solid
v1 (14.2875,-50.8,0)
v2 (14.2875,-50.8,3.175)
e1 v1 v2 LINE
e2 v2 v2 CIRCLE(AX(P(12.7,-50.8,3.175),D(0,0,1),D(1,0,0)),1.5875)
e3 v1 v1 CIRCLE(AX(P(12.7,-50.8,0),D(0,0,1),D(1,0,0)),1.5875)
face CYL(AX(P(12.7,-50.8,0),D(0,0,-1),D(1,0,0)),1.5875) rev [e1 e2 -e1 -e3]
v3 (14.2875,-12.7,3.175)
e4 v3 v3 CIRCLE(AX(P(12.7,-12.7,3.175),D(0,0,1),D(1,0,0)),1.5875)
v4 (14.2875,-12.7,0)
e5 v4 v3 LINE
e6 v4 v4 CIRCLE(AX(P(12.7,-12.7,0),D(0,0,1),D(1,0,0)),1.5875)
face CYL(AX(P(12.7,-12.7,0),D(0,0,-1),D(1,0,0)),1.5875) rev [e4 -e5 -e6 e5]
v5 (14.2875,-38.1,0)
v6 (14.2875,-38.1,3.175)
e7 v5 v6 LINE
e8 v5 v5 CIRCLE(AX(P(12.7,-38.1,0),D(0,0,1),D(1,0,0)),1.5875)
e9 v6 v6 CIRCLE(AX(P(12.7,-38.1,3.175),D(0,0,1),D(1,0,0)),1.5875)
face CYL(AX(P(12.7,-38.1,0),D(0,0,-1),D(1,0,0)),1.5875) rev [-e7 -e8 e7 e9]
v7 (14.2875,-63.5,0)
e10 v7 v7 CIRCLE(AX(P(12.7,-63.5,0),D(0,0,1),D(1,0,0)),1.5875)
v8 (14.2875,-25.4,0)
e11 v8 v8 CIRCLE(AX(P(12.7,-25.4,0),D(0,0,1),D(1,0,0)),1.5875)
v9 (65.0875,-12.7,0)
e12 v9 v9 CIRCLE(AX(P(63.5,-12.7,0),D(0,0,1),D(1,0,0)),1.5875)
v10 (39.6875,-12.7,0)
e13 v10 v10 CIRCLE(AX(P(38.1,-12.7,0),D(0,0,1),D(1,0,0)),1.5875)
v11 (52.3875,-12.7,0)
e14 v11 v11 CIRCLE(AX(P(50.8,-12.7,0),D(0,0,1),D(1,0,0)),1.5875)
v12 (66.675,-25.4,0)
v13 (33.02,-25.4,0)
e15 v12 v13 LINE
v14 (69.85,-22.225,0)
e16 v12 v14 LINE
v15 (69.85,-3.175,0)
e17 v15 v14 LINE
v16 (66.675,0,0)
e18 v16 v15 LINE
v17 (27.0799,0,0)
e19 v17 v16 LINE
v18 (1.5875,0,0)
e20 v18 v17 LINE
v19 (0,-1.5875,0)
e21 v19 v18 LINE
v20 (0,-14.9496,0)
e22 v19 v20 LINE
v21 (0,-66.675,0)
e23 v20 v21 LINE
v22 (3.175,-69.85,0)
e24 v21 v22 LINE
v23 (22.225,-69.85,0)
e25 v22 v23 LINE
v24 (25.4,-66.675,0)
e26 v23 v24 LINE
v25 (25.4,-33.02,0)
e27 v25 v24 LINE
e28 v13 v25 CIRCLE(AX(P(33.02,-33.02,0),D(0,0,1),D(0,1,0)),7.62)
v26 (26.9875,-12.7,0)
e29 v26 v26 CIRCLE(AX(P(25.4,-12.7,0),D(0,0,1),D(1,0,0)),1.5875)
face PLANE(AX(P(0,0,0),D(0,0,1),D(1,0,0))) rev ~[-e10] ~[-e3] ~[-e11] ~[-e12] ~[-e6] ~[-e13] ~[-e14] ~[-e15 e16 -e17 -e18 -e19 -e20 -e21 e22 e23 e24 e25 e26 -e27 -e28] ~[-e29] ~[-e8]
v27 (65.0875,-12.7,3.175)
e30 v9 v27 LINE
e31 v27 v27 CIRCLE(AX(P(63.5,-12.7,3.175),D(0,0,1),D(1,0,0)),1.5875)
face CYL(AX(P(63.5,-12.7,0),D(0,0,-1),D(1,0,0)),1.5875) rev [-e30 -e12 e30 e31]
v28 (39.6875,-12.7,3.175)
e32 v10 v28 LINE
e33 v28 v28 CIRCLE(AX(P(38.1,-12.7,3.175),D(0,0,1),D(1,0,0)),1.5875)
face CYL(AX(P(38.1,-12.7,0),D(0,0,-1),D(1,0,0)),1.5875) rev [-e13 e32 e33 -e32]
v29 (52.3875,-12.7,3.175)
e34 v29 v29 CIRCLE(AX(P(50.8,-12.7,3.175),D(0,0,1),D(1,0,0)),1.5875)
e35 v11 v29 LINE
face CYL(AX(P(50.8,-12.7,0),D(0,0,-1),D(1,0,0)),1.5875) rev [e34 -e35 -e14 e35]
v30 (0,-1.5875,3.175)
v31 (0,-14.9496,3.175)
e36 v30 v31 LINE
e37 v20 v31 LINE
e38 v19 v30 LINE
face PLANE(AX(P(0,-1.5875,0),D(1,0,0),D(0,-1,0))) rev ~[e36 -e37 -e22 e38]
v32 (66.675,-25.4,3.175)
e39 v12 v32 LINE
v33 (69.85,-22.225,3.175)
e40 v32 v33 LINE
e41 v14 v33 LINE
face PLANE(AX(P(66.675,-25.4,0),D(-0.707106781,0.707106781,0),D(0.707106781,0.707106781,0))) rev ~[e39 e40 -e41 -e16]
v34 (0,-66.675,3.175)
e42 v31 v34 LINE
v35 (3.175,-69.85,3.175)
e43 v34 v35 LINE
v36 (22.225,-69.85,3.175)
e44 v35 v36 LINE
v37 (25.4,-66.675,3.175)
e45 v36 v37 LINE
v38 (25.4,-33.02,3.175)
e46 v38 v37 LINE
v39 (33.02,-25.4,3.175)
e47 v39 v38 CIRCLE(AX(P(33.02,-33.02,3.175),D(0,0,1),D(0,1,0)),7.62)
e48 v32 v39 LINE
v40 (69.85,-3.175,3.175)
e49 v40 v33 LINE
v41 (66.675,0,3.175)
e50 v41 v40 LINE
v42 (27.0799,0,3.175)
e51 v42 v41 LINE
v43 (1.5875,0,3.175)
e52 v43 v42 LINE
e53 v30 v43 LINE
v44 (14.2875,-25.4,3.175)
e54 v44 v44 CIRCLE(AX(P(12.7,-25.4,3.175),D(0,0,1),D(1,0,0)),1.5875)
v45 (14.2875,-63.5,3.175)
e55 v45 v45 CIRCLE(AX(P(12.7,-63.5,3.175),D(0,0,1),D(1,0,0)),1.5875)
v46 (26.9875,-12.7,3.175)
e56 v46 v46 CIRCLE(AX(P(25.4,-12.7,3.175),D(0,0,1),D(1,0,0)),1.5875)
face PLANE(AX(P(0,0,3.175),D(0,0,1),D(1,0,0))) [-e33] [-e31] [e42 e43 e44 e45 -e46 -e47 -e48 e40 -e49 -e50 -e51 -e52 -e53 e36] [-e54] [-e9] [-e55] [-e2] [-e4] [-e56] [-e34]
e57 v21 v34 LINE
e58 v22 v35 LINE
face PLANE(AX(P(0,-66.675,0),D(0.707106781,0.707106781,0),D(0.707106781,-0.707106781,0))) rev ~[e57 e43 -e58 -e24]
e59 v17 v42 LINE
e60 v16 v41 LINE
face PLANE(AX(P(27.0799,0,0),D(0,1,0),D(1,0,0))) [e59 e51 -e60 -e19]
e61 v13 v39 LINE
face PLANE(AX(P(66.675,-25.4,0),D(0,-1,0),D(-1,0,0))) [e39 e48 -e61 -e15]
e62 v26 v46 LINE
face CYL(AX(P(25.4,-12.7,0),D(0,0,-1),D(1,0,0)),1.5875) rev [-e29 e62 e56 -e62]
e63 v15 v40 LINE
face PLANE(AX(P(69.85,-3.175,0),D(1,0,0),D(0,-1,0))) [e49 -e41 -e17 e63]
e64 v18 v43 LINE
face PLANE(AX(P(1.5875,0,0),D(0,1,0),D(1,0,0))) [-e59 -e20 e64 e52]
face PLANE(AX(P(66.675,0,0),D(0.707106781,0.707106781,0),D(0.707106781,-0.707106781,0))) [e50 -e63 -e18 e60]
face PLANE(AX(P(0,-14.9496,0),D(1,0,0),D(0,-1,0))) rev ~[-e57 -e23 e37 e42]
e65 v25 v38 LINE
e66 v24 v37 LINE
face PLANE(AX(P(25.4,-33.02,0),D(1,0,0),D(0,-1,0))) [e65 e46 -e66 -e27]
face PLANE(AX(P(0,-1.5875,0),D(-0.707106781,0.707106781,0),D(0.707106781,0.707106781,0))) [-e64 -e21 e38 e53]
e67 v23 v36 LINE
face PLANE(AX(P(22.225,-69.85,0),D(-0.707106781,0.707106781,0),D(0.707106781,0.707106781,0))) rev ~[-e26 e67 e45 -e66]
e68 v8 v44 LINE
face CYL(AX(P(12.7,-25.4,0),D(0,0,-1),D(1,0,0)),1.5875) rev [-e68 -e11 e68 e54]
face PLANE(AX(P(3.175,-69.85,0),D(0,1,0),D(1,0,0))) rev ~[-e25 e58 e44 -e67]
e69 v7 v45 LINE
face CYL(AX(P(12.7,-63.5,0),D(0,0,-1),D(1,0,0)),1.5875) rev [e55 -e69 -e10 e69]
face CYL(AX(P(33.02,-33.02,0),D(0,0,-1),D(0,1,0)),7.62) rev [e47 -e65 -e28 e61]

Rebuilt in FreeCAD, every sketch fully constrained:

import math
import FreeCAD as App
import Part
import Sketcher
Q = App.Units.Quantity

doc = App.newDocument("Part")
body = doc.addObject("PartDesign::Body", "Body")

# Sketch on XY plane
sketch1 = doc.addObject("Sketcher::SketchObject", "Sketch")
body.addObject(sketch1)
sketch1.AttachmentSupport = (doc.XY_Plane, [""])
sketch1.MapMode = "FlatFace"
sketch1.addGeometry(Part.LineSegment(App.Vector(1.5875, 0, 0), App.Vector(0, -1.5875, 0)), False)
sketch1.addGeometry(Part.LineSegment(App.Vector(0, -1.5875, 0), App.Vector(0, -66.675, 0)), False)
sketch1.addGeometry(Part.LineSegment(App.Vector(0, -66.675, 0), App.Vector(3.175, -69.85, 0)), False)
sketch1.addGeometry(Part.LineSegment(App.Vector(3.175, -69.85, 0), App.Vector(22.225, -69.85, 0)), False)
sketch1.addGeometry(Part.LineSegment(App.Vector(22.225, -69.85, 0), App.Vector(25.4, -66.675, 0)), False)
sketch1.addGeometry(Part.LineSegment(App.Vector(25.4, -66.675, 0), App.Vector(25.4, -33.02, 0)), False)
sketch1.addGeometry(Part.ArcOfCircle(Part.Circle(App.Vector(33.02, -33.02, 0), App.Vector(0, 0, 1), 7.62), math.radians(90), math.radians(180)), False)
sketch1.addGeometry(Part.LineSegment(App.Vector(33.02, -25.4, 0), App.Vector(66.675, -25.4, 0)), False)
sketch1.addGeometry(Part.LineSegment(App.Vector(66.675, -25.4, 0), App.Vector(69.85, -22.225, 0)), False)
sketch1.addGeometry(Part.LineSegment(App.Vector(69.85, -22.225, 0), App.Vector(69.85, -3.175, 0)), False)
sketch1.addGeometry(Part.LineSegment(App.Vector(69.85, -3.175, 0), App.Vector(66.675, 0, 0)), False)
sketch1.addGeometry(Part.LineSegment(App.Vector(66.675, 0, 0), App.Vector(1.5875, 0, 0)), False)
sketch1.addGeometry(Part.Circle(App.Vector(12.7, -63.5, 0), App.Vector(0, 0, 1), 1.5875), False)
sketch1.addGeometry(Part.Circle(App.Vector(12.7, -50.8, 0), App.Vector(0, 0, 1), 1.5875), False)
sketch1.addGeometry(Part.Circle(App.Vector(12.7, -38.1, 0), App.Vector(0, 0, 1), 1.5875), False)
sketch1.addGeometry(Part.Circle(App.Vector(12.7, -25.4, 0), App.Vector(0, 0, 1), 1.5875), False)
sketch1.addGeometry(Part.Circle(App.Vector(12.7, -12.7, 0), App.Vector(0, 0, 1), 1.5875), False)
sketch1.addGeometry(Part.Circle(App.Vector(25.4, -12.7, 0), App.Vector(0, 0, 1), 1.5875), False)
sketch1.addGeometry(Part.Circle(App.Vector(38.1, -12.7, 0), App.Vector(0, 0, 1), 1.5875), False)
sketch1.addGeometry(Part.Circle(App.Vector(50.8, -12.7, 0), App.Vector(0, 0, 1), 1.5875), False)
sketch1.addGeometry(Part.Circle(App.Vector(63.5, -12.7, 0), App.Vector(0, 0, 1), 1.5875), False)
sketch1.addConstraint(Sketcher.Constraint("Coincident", 0, 2, 1, 1))
sketch1.addConstraint(Sketcher.Constraint("Coincident", 1, 2, 2, 1))
sketch1.addConstraint(Sketcher.Constraint("Coincident", 2, 2, 3, 1))
sketch1.addConstraint(Sketcher.Constraint("Coincident", 3, 2, 4, 1))
sketch1.addConstraint(Sketcher.Constraint("Coincident", 4, 2, 5, 1))
sketch1.addConstraint(Sketcher.Constraint("Tangent", 5, 2, 6, 2))
sketch1.addConstraint(Sketcher.Constraint("Tangent", 6, 1, 7, 1))
sketch1.addConstraint(Sketcher.Constraint("Coincident", 7, 2, 8, 1))
sketch1.addConstraint(Sketcher.Constraint("Coincident", 8, 2, 9, 1))
sketch1.addConstraint(Sketcher.Constraint("Coincident", 9, 2, 10, 1))
sketch1.addConstraint(Sketcher.Constraint("Coincident", 10, 2, 11, 1))
sketch1.addConstraint(Sketcher.Constraint("Coincident", 11, 2, 0, 1))
sketch1.addConstraint(Sketcher.Constraint("Vertical", 1))
sketch1.addConstraint(Sketcher.Constraint("Horizontal", 3))
sketch1.addConstraint(Sketcher.Constraint("Vertical", 5))
sketch1.addConstraint(Sketcher.Constraint("Horizontal", 7))
sketch1.addConstraint(Sketcher.Constraint("Vertical", 9))
sketch1.addConstraint(Sketcher.Constraint("Horizontal", 11))
sketch1.addConstraint(Sketcher.Constraint("Equal", 12, 13))
sketch1.addConstraint(Sketcher.Constraint("Equal", 13, 14))
sketch1.addConstraint(Sketcher.Constraint("Equal", 14, 15))
sketch1.addConstraint(Sketcher.Constraint("Equal", 15, 16))
sketch1.addConstraint(Sketcher.Constraint("Equal", 16, 17))
sketch1.addConstraint(Sketcher.Constraint("Equal", 17, 18))
sketch1.addConstraint(Sketcher.Constraint("Equal", 18, 19))
sketch1.addConstraint(Sketcher.Constraint("Equal", 19, 20))
sketch1.addConstraint(Sketcher.Constraint("PointOnObject", 0, 2, -2))
sketch1.addConstraint(Sketcher.Constraint("PointOnObject", 10, 2, -1))
sketch1.addConstraint(Sketcher.Constraint("Perpendicular", 0, 2))
sketch1.addConstraint(Sketcher.Constraint("Perpendicular", 2, 4))
sketch1.addConstraint(Sketcher.Constraint("Parallel", 4, 8))
sketch1.addConstraint(Sketcher.Constraint("Perpendicular", 8, 10))
sketch1.addConstraint(Sketcher.Constraint("Horizontal", 16, 3, 17, 3))
sketch1.addConstraint(Sketcher.Constraint("Horizontal", 17, 3, 18, 3))
sketch1.addConstraint(Sketcher.Constraint("Horizontal", 18, 3, 19, 3))
sketch1.addConstraint(Sketcher.Constraint("Horizontal", 19, 3, 20, 3))
sketch1.addConstraint(Sketcher.Constraint("Horizontal", 1, 2, 4, 2))
sketch1.addConstraint(Sketcher.Constraint("Horizontal", 15, 3, 6, 1))
sketch1.addConstraint(Sketcher.Constraint("Vertical", 12, 3, 13, 3))
sketch1.addConstraint(Sketcher.Constraint("Vertical", 13, 3, 14, 3))
sketch1.addConstraint(Sketcher.Constraint("Vertical", 14, 3, 15, 3))
sketch1.addConstraint(Sketcher.Constraint("Vertical", 15, 3, 16, 3))
sketch1.addConstraint(Sketcher.Constraint("Vertical", 17, 3, 4, 2))
sketch1.addConstraint(Sketcher.Constraint("Vertical", 7, 2, 10, 2))
sketch1.addConstraint(Sketcher.Constraint("Equal", 11, 1))
sketch1.addConstraint(Sketcher.Constraint("Equal", 7, 5))
sketch1.addConstraint(Sketcher.Constraint("Equal", 3, 9))
sketch1.addConstraint(Sketcher.Constraint("Equal", 2, 4))
sketch1.addConstraint(Sketcher.Constraint("Radius", 6, Q("0.3 in")))
sketch1.addConstraint(Sketcher.Constraint("Diameter", 12, Q("0.125 in")))
sketch1.addConstraint(Sketcher.Constraint("DistanceY", 15, 3, -1, 1, Q("1 in")))
sketch1.addConstraint(Sketcher.Constraint("DistanceY", 12, 3, 14, 3, Q("1 in")))
sketch1.addConstraint(Sketcher.Constraint("DistanceY", 13, 3, 15, 3, Q("1 in")))
sketch1.addConstraint(Sketcher.Constraint("DistanceY", 14, 3, 16, 3, Q("1 in")))
sketch1.addConstraint(Sketcher.Constraint("DistanceX", 16, 3, 18, 3, Q("1 in")))
sketch1.addConstraint(Sketcher.Constraint("DistanceX", 17, 3, 19, 3, Q("1 in")))
sketch1.addConstraint(Sketcher.Constraint("DistanceX", 18, 3, 20, 3, Q("1 in")))
sketch1.addConstraint(Sketcher.Constraint("DistanceX", -1, 1, 12, 3, Q("0.5 in")))
sketch1.addConstraint(Sketcher.Constraint("DistanceY", 16, 3, -1, 1, Q("0.5 in")))
sketch1.addConstraint(Sketcher.Constraint("DistanceY", 2, 2, 12, 3, Q("0.25 in")))
sketch1.addConstraint(Sketcher.Constraint("DistanceX", -1, 1, 2, 2, Q("0.125 in")))
sketch1.addConstraint(Sketcher.Constraint("DistanceX", 11, 2, 11, 1, Q("2.5625 in")))
pad1 = doc.addObject("PartDesign::Pad", "Pad")
body.addObject(pad1)
pad1.Profile = sketch1
pad1.Length = Q("0.125 in")

doc.recompute()
